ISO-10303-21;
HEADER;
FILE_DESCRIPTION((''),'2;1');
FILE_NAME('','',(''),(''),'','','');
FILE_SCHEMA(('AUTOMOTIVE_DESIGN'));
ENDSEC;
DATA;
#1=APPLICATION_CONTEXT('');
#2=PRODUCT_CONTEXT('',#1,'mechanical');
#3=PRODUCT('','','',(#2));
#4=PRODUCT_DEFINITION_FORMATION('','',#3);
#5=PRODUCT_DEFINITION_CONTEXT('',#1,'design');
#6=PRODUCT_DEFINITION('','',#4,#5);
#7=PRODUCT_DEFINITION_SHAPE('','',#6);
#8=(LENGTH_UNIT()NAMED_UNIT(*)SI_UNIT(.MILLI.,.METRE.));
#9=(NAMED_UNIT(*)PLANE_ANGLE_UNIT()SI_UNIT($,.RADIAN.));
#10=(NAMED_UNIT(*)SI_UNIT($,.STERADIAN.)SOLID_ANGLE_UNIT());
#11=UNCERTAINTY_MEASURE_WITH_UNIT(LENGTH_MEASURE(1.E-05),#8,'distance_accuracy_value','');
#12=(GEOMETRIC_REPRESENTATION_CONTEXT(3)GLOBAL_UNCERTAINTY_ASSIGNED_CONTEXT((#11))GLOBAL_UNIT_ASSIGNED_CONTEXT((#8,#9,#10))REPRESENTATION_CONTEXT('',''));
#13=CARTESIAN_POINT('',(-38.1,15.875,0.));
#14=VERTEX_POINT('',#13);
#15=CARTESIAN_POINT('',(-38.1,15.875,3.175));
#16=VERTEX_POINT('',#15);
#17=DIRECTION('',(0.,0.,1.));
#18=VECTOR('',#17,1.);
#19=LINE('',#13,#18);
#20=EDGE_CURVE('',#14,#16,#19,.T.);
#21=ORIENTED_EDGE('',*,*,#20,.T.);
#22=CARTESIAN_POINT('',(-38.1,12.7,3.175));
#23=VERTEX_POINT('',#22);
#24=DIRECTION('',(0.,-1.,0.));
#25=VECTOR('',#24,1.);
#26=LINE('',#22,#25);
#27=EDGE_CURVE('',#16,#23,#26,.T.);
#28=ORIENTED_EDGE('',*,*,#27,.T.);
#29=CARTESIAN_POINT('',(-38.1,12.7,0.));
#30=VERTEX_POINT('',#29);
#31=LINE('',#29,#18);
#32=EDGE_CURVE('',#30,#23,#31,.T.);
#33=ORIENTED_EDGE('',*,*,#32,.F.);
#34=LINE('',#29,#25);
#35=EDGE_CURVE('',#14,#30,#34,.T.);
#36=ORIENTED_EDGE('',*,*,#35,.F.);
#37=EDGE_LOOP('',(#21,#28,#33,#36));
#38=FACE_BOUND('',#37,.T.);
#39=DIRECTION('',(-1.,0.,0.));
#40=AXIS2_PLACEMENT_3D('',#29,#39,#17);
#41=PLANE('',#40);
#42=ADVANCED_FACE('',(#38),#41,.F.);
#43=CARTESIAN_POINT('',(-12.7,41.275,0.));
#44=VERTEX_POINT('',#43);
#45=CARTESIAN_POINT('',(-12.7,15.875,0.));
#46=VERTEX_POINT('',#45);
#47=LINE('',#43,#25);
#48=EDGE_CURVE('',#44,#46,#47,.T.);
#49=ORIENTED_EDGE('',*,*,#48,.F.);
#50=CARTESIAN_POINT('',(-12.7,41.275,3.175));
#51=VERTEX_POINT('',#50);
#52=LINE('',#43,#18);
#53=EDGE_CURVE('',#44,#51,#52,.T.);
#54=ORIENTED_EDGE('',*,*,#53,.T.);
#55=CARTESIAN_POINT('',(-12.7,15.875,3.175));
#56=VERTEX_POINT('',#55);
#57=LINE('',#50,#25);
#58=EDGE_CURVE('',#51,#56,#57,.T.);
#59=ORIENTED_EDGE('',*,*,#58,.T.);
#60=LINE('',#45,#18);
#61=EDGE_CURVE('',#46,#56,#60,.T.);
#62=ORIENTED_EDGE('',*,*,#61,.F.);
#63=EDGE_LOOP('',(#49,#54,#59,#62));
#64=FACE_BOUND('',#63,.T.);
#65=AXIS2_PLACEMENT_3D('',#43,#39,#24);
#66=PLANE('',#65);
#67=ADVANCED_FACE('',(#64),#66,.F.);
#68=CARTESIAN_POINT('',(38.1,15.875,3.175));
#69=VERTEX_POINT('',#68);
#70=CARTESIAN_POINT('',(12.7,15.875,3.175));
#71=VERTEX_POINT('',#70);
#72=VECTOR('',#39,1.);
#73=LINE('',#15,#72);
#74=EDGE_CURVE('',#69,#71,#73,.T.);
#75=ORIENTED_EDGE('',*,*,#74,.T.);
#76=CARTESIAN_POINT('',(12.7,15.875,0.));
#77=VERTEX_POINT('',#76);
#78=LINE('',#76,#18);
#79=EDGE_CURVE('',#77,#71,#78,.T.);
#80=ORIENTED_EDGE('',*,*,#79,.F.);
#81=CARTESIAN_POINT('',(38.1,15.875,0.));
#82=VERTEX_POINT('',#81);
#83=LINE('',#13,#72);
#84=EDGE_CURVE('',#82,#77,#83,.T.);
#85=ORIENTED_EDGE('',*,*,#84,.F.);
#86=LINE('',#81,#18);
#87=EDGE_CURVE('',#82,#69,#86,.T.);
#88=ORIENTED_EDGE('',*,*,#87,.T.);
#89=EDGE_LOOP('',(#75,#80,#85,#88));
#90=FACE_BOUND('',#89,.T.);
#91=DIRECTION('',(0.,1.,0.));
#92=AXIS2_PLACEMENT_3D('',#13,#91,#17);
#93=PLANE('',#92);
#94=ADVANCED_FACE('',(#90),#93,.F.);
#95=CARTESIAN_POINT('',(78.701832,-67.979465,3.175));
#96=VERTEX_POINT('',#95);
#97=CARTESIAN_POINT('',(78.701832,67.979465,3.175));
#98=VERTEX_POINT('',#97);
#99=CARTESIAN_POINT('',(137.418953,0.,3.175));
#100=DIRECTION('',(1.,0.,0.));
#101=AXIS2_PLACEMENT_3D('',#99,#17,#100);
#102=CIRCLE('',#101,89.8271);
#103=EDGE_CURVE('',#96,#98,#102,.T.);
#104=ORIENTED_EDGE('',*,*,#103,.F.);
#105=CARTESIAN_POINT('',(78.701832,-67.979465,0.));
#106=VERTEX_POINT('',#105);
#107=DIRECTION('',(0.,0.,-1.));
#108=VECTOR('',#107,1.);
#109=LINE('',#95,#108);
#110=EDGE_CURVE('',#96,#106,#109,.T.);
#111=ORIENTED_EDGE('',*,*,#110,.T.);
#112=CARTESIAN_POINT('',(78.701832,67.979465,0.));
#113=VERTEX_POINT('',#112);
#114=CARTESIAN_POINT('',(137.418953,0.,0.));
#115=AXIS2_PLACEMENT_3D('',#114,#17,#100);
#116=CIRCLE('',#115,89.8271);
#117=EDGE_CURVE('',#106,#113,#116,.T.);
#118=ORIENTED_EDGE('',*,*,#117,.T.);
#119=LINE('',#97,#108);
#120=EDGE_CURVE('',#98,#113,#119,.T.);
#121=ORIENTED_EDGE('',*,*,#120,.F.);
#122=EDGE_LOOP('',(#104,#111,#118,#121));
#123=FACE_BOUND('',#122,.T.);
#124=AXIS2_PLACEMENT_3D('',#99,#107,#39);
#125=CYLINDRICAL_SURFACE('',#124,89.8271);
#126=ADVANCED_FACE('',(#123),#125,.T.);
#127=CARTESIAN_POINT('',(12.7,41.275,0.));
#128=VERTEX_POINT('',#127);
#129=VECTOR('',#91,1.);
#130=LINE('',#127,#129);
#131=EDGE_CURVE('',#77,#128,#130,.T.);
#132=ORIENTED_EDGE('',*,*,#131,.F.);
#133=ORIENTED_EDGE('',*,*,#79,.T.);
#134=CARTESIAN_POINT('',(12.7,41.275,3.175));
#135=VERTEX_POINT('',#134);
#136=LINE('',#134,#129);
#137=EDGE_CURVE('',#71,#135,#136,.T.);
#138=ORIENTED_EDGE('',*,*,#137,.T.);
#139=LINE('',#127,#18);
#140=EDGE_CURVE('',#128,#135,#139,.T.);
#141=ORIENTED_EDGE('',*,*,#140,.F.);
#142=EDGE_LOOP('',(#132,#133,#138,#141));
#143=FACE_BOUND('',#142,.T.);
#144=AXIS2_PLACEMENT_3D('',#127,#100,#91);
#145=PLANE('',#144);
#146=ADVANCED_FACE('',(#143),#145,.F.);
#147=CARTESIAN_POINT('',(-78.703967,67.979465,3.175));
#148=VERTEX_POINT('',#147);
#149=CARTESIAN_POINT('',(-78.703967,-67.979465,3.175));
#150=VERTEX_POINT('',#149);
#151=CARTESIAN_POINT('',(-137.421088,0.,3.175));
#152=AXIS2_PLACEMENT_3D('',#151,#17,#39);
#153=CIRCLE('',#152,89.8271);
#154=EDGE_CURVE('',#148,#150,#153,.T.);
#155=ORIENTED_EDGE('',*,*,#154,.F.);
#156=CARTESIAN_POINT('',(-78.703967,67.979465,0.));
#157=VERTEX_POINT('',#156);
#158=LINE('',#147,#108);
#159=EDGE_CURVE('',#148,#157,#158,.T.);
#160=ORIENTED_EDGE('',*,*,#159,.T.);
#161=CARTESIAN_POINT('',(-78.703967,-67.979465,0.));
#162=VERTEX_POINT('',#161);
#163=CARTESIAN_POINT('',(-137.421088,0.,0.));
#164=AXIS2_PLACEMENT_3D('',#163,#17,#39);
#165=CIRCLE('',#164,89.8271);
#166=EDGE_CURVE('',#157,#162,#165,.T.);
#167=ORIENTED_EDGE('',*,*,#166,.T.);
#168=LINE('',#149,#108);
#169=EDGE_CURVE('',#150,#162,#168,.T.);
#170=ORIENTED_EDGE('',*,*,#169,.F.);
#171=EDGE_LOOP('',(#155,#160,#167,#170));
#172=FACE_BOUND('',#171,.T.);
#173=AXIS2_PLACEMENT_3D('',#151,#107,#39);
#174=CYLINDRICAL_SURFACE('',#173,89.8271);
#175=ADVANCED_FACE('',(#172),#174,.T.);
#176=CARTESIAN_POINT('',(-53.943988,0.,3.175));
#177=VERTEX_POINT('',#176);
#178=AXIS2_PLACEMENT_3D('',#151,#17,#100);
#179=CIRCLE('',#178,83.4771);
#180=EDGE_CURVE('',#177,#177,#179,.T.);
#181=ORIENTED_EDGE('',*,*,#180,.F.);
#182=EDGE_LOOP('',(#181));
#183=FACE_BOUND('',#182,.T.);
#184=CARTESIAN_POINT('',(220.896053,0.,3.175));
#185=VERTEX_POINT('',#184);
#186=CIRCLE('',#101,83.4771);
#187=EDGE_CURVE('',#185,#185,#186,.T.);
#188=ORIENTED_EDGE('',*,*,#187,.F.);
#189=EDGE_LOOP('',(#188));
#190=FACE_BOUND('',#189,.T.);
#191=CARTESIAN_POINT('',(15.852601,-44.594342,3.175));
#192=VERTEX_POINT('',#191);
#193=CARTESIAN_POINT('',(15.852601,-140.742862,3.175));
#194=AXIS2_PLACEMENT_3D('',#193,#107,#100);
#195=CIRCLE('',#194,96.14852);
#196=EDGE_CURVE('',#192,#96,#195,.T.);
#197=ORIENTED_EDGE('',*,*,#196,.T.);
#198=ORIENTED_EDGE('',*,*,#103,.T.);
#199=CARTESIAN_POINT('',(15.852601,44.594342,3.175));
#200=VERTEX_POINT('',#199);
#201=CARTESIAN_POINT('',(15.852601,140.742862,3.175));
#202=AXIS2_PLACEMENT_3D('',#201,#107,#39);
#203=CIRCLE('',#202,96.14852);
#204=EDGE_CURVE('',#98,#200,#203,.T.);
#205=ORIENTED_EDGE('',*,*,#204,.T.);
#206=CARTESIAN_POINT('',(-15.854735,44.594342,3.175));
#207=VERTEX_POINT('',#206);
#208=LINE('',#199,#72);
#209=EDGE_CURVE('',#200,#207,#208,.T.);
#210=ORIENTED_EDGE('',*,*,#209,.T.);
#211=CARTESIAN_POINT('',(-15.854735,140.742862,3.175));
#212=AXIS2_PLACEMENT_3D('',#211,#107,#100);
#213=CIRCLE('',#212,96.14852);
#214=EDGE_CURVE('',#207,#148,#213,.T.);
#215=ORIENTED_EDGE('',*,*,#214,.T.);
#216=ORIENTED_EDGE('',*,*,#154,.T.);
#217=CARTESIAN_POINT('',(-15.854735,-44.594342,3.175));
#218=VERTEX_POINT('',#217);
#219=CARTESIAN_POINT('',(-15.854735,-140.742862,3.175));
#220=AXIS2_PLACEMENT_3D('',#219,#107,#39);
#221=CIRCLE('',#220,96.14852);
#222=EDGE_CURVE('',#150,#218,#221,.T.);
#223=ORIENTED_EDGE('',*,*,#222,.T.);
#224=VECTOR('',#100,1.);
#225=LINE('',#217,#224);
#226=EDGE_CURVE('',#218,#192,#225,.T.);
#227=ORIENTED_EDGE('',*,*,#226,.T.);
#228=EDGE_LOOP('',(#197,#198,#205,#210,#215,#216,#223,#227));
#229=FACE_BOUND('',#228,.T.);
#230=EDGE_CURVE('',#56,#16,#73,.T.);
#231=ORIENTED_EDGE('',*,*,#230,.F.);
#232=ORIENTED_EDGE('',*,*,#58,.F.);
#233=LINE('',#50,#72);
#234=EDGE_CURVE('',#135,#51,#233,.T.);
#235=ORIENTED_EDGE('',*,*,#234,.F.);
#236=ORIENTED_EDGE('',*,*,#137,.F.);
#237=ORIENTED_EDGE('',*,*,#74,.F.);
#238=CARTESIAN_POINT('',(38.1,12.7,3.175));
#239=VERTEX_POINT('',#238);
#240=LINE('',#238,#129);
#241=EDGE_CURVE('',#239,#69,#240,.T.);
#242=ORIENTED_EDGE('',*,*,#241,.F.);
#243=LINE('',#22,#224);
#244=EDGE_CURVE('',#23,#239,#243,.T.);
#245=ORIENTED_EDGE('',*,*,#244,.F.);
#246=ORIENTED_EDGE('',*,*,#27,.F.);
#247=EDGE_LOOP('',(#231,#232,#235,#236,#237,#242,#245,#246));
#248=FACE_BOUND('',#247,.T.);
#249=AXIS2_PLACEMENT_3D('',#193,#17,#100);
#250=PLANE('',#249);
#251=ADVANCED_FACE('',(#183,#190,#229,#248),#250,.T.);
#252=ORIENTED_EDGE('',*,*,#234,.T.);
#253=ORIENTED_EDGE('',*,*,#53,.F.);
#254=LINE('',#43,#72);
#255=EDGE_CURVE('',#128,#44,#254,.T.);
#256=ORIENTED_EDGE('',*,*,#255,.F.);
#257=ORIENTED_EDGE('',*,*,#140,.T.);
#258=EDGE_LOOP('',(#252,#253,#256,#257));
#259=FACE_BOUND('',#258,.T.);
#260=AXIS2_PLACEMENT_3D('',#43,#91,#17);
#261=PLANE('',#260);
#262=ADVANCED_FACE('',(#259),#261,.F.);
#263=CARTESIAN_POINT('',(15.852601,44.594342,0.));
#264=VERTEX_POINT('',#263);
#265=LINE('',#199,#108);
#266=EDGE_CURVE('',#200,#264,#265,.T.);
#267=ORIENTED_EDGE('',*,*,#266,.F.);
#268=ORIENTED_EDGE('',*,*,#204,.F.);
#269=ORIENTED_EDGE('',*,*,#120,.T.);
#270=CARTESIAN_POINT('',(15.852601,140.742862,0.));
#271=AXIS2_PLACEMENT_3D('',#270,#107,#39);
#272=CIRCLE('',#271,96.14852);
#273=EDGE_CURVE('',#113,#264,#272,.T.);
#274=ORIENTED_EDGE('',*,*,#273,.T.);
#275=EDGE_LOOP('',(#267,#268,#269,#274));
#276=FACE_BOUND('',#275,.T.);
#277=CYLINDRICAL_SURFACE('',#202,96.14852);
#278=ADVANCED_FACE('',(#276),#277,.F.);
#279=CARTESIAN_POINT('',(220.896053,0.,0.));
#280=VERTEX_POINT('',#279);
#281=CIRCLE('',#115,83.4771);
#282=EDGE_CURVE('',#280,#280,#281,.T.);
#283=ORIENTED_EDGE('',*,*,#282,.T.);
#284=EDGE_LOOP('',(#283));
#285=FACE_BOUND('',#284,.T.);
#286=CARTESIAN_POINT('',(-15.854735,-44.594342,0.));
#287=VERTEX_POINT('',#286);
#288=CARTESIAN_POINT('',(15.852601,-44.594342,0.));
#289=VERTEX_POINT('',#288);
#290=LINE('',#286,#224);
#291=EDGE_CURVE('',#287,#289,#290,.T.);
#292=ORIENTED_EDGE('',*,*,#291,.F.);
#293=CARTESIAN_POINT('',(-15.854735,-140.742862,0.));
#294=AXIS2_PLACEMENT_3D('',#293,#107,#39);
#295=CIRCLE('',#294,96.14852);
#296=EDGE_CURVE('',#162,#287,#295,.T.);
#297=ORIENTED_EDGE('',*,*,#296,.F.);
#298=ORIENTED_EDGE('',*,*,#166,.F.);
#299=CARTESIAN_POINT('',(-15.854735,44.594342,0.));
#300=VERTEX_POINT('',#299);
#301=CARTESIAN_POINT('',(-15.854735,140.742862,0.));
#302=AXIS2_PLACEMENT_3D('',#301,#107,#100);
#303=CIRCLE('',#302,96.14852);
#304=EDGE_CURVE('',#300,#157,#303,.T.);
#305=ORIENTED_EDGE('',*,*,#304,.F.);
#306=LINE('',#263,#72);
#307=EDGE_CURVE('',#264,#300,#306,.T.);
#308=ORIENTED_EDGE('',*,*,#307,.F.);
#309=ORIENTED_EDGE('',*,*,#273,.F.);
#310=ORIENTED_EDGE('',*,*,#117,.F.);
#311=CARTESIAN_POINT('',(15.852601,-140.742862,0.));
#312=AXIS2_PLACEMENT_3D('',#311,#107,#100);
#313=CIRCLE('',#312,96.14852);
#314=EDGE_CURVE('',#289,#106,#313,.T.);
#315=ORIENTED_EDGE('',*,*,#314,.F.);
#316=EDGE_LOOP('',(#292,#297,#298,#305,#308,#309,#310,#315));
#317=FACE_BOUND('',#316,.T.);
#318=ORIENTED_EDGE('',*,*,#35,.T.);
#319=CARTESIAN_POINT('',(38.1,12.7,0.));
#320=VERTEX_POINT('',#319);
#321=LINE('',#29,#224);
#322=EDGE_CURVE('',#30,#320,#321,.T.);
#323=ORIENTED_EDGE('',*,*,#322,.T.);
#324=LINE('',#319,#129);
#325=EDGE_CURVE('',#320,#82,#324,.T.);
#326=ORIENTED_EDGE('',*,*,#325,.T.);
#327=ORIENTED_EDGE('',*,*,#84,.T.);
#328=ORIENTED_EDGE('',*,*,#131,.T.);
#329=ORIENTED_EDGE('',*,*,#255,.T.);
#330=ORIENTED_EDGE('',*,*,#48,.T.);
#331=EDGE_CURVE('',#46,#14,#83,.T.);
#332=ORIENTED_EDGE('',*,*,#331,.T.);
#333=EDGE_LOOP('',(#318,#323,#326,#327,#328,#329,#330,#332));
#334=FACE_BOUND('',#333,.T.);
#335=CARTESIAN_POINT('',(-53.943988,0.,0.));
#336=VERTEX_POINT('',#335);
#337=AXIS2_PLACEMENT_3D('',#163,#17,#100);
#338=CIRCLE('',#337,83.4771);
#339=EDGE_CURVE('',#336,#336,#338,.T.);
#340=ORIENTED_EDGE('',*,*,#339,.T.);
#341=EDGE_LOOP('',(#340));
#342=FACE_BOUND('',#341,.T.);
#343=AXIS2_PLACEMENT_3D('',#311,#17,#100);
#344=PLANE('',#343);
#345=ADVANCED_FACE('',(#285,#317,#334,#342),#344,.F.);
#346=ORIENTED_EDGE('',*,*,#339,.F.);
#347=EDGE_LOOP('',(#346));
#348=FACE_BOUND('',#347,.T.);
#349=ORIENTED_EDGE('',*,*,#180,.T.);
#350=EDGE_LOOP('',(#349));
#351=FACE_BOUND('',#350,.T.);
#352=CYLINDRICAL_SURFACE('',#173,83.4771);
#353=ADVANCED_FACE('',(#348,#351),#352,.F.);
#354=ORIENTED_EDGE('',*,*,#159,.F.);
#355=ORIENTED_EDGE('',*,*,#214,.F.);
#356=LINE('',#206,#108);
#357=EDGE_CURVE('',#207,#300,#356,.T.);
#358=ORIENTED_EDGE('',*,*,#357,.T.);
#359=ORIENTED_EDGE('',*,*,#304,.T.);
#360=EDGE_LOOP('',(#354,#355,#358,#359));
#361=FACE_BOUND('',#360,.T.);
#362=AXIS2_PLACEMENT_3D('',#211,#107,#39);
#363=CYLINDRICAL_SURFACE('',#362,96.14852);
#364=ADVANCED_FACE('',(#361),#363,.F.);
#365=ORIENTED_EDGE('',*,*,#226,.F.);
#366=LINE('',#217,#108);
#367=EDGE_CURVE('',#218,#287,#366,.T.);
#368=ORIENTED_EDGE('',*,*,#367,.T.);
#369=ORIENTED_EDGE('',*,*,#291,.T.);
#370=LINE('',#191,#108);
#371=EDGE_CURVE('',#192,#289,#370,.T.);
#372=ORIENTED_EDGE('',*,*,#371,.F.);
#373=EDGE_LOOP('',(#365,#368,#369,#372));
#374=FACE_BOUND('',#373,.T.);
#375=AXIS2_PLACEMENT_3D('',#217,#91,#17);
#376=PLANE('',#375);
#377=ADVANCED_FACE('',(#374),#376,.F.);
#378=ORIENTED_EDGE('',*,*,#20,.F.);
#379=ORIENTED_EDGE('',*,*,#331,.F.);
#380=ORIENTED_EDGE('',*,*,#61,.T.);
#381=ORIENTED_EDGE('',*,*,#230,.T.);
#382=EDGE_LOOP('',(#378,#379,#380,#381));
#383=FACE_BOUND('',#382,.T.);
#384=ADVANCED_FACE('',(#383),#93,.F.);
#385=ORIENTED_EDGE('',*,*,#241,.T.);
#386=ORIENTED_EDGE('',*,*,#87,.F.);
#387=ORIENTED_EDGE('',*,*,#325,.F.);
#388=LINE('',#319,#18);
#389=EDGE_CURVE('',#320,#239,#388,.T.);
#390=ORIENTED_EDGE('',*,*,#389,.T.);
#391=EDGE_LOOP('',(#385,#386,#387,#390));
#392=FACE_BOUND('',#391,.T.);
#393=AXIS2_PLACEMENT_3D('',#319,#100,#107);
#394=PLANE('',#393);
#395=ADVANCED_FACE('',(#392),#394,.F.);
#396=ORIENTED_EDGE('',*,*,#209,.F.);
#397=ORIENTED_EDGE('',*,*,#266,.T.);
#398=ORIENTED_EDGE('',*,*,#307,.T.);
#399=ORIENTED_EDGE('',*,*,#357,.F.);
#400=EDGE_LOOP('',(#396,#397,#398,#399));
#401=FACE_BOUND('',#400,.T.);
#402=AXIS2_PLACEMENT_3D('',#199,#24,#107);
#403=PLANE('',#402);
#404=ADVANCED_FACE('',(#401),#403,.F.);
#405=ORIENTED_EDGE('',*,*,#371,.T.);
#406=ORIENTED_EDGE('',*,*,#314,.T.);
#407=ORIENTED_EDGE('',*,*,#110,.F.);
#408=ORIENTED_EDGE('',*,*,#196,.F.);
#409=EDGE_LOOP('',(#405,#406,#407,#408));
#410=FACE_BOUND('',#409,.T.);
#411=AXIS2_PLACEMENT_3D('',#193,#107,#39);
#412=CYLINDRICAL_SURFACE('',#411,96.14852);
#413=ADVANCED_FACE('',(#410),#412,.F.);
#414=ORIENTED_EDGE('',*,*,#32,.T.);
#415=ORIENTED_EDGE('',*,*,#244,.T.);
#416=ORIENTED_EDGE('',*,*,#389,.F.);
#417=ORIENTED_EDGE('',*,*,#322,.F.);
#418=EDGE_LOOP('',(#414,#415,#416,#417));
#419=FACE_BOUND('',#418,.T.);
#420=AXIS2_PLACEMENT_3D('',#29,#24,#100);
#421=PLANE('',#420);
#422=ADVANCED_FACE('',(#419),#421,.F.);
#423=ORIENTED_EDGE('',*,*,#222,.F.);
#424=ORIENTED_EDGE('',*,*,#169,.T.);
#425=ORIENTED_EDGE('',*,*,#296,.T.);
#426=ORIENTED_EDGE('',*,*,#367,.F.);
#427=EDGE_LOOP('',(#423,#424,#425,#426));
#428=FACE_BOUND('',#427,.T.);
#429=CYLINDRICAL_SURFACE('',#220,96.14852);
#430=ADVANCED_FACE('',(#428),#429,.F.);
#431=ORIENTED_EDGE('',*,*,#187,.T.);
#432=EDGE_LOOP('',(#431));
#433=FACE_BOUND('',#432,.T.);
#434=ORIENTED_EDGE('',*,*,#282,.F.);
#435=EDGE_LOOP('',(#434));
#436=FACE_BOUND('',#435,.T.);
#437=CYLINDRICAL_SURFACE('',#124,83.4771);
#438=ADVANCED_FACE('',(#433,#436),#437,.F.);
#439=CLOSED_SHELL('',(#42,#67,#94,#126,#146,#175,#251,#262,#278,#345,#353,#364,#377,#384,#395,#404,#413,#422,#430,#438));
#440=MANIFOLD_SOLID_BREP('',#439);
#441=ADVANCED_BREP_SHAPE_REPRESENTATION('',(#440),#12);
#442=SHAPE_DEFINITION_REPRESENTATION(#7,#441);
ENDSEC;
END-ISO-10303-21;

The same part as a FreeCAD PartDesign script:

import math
import FreeCAD as App
import Part
import Sketcher
from FreeCAD import Vector
Q = App.Units.Quantity

doc = App.newDocument("Part")
body = doc.addObject("PartDesign::Body", "Body")

# Sketch on XY plane
sketch1 = body.newObject("Sketcher::SketchObject", "Sketch")
sketch1.AttachmentSupport = (doc.getObject("XY_Plane"), [""])
sketch1.MapMode = "FlatFace"
sketch1.addGeometry([
    Part.LineSegment(Vector(-15.9, -44.6, 0), Vector(15.9, -44.6, 0)),  # 0
    Part.ArcOfCircle(Part.Circle(Vector(15.9, -140.7, 0), Vector(0, 0, 1), 96.1), math.radians(49), math.radians(90)),  # 1
    Part.ArcOfCircle(Part.Circle(Vector(137.4, 0, 0), Vector(0, 0, 1), 89.8), math.radians(-131), math.radians(131)),  # 2
    Part.ArcOfCircle(Part.Circle(Vector(15.9, 140.7, 0), Vector(0, 0, 1), 96.1), math.radians(-90), math.radians(-49)),  # 3
    Part.LineSegment(Vector(15.9, 44.6, 0), Vector(-15.9, 44.6, 0)),  # 4
    Part.ArcOfCircle(Part.Circle(Vector(-15.9, 140.7, 0), Vector(0, 0, 1), 96.1), math.radians(-131), math.radians(-90)),  # 5
    Part.ArcOfCircle(Part.Circle(Vector(-137.4, 0, 0), Vector(0, 0, 1), 89.8), math.radians(49), math.radians(311)),  # 6
    Part.ArcOfCircle(Part.Circle(Vector(-15.9, -140.7, 0), Vector(0, 0, 1), 96.1), math.radians(90), math.radians(131)),  # 7
    Part.Circle(Vector(-137.4, 0, 0), Vector(0, 0, 1), 83.5),  # 8
    Part.Circle(Vector(137.4, 0, 0), Vector(0, 0, 1), 83.5),  # 9
    Part.Circle(Vector(0, 28.6, 0), Vector(0, 0, 1), 3.2),  # 10
], False)
sketch1.addConstraint([
    Sketcher.Constraint("Tangent", 0, 2, 1, 2),
    Sketcher.Constraint("Tangent", 1, 1, 2, 1),
    Sketcher.Constraint("Tangent", 2, 2, 3, 2),
    Sketcher.Constraint("Tangent", 3, 1, 4, 1),
    Sketcher.Constraint("Tangent", 4, 2, 5, 2),
    Sketcher.Constraint("Tangent", 5, 1, 6, 1),
    Sketcher.Constraint("Tangent", 6, 2, 7, 2),
    Sketcher.Constraint("Tangent", 7, 1, 0, 1),
    Sketcher.Constraint("Horizontal", 0),
    Sketcher.Constraint("Horizontal", 4),
    Sketcher.Constraint("Coincident", 8, 3, 6, 3),
    Sketcher.Constraint("Coincident", 9, 3, 2, 3),
    Sketcher.Constraint("Equal", 1, 3),
    Sketcher.Constraint("Equal", 3, 5),
    Sketcher.Constraint("Equal", 2, 6),
    Sketcher.Constraint("Equal", 5, 7),
    Sketcher.Constraint("Equal", 8, 9),
    Sketcher.Constraint("Symmetric", 1, 3, 3, 3, -1),
    Sketcher.Constraint("PointOnObject", 6, 3, -1),
    Sketcher.Constraint("PointOnObject", 10, 3, -2),
    Sketcher.Constraint("Diameter", 10, Q("0.25 in")),
    Sketcher.Constraint("Diameter", 8, Q("6.573 in")),
    Sketcher.Constraint("Radius", 2, Q("3.5365 in")),
    Sketcher.Constraint("DistanceY", -1, 1, 10, 3, Q("1.125 in")),
    Sketcher.Constraint("Radius", 1, 96.14852),
    Sketcher.Constraint("DistanceX", -1, 1, 1, 3, 15.852601),
    Sketcher.Constraint("DistanceX", 0, 1, 0, 2, 31.707336),
    Sketcher.Constraint("DistanceY", 1, 3, -1, 1, 140.742862),
])
pad1 = body.newObject("PartDesign::Pad", "Pad")
pad1.Profile = sketch1
pad1.Length = Q("0.125 in")

# Sketch on XY plane
sketch2 = body.newObject("Sketcher::SketchObject", "Sketch001")
sketch2.AttachmentSupport = (doc.getObject("XY_Plane"), [""])
sketch2.MapMode = "FlatFace"
sketch2.AttachmentOffset = App.Placement(Vector(0, 0, 0.125 * 25.4), App.Rotation())
sketch2.addGeometry([
    Part.LineSegment(Vector(-13, 41, 0), Vector(-13, 16, 0)),
    Part.LineSegment(Vector(-13, 16, 0), Vector(13, 16, 0)),
    Part.LineSegment(Vector(13, 16, 0), Vector(13, 41, 0)),
    Part.LineSegment(Vector(13, 41, 0), Vector(-13, 41, 0)),
], False)
sketch2.addConstraint([
    Sketcher.Constraint("Coincident", 0, 2, 1, 1),
    Sketcher.Constraint("Coincident", 1, 2, 2, 1),
    Sketcher.Constraint("Coincident", 2, 2, 3, 1),
    Sketcher.Constraint("Coincident", 3, 2, 0, 1),
    Sketcher.Constraint("Vertical", 0),
    Sketcher.Constraint("Horizontal", 1),
    Sketcher.Constraint("Vertical", 2),
    Sketcher.Constraint("Horizontal", 3),
    Sketcher.Constraint("Equal", 3, 0),
    Sketcher.Constraint("DistanceX", 1, 1, 1, 2, Q("1 in")),
    Sketcher.Constraint("DistanceX", 0, 2, -1, 1, Q("0.5 in")),
    Sketcher.Constraint("DistanceY", -1, 1, 0, 2, Q("0.625 in")),
])
pocket1 = body.newObject("PartDesign::Pocket", "Pocket")
pocket1.Profile = sketch2
pocket1.Type = "ThroughAll"

# Sketch on XY plane
sketch3 = body.newObject("Sketcher::SketchObject", "Sketch002")
sketch3.AttachmentSupport = (doc.getObject("XY_Plane"), [""])
sketch3.MapMode = "FlatFace"
sketch3.AttachmentOffset = App.Placement(Vector(0, 0, 0.125 * 25.4), App.Rotation())
sketch3.addGeometry([
    Part.LineSegment(Vector(-38.1, 15.9, 0), Vector(-38.1, 12.7, 0)),
    Part.LineSegment(Vector(-38.1, 12.7, 0), Vector(38.1, 12.7, 0)),
    Part.LineSegment(Vector(38.1, 12.7, 0), Vector(38.1, 15.9, 0)),
    Part.LineSegment(Vector(38.1, 15.9, 0), Vector(-38.1, 15.9, 0)),
], False)
sketch3.addConstraint([
    Sketcher.Constraint("Coincident", 0, 2, 1, 1),
    Sketcher.Constraint("Coincident", 1, 2, 2, 1),
    Sketcher.Constraint("Coincident", 2, 2, 3, 1),
    Sketcher.Constraint("Coincident", 3, 2, 0, 1),
    Sketcher.Constraint("Vertical", 0),
    Sketcher.Constraint("Horizontal", 1),
    Sketcher.Constraint("Vertical", 2),
    Sketcher.Constraint("Horizontal", 3),
    Sketcher.Constraint("DistanceX", 1, 1, 1, 2, Q("3 in")),
    Sketcher.Constraint("DistanceX", 0, 2, -1, 1, Q("1.5 in")),
    Sketcher.Constraint("DistanceY", -1, 1, 0, 2, Q("0.5 in")),
    Sketcher.Constraint("DistanceY", 0, 2, 0, 1, Q("0.125 in")),
])
pocket2 = body.newObject("PartDesign::Pocket", "Pocket001")
pocket2.Profile = sketch3
pocket2.Type = "ThroughAll"

doc.recompute()
